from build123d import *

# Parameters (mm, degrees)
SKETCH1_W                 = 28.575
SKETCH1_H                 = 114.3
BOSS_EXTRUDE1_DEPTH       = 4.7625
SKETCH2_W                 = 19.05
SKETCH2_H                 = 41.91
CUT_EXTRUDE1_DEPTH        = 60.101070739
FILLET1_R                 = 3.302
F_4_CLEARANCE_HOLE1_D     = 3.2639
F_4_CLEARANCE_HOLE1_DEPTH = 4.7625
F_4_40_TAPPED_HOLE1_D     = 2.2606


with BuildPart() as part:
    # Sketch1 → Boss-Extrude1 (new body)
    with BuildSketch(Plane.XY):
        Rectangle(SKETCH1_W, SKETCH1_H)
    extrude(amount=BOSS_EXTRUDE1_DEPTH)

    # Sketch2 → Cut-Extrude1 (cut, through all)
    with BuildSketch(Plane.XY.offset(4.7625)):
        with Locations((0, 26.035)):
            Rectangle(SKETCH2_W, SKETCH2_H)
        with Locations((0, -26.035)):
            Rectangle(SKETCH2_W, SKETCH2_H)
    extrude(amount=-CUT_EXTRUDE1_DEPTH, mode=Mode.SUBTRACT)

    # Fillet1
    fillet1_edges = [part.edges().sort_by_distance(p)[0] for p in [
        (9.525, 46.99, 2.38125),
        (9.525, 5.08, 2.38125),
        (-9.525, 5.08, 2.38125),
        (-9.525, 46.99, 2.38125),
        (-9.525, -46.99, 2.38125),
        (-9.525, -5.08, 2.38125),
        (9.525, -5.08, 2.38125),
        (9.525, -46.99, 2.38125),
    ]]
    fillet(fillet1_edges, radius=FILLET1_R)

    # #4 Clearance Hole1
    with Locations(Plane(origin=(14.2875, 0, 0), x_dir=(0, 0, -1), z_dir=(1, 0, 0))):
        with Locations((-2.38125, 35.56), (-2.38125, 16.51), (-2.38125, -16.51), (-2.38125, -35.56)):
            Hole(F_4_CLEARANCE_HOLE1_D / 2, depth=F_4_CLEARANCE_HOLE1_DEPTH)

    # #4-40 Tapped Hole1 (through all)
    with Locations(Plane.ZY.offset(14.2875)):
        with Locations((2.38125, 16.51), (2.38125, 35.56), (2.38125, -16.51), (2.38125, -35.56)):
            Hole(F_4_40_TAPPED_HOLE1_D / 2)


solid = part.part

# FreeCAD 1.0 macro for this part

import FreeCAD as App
import Part
import Sketcher
from FreeCAD import Vector
Q = App.Units.Quantity


def edges_at(feature, points):
    """Names of the edges that pass closest to the given points."""
    edges = feature.Shape.Edges
    near = lambda p: min(range(len(edges)), key=lambda i: edges[i].distToShape(Part.Vertex(*p))[0])
    return sorted({f"Edge{near(p) + 1}" for p in points})

doc = App.newDocument("Part")
params = doc.addObject("Spreadsheet::Sheet", "Params")
for row, (alias, value) in enumerate([
    ("sketch1_height", "4.5 in"),
    ("sketch1_width", "1.125 in"),
    ("pad1_length", "0.1875 in"),
    ("sketch2_width", "0.75 in"),
    ("sketch2_height", "1.65 in"),
    ("fillet_radius", "0.13 in"),
    ("hole_diameter", "0.1285 in"),
    ("hole_depth", "0.1875 in"),
    ("sketch4_diameter", "0.089 in"),
    ("hole2_diameter", "0.089 in"),
], start=1):
    params.set(f"A{row}", alias)
    params.set(f"B{row}", "=" + value)
    params.setAlias(f"B{row}", alias)

body = doc.addObject("PartDesign::Body", "Body")

sketch1 = body.newObject("Sketcher::SketchObject", "Sketch")
sketch1.AttachmentSupport = (doc.getObject("XY_Plane"), [""])
sketch1.MapMode = "FlatFace"
sketch1.addGeometry(Part.LineSegment(Vector(-14, 57, 0), Vector(-14, -57, 0)), False)
sketch1.addGeometry(Part.LineSegment(Vector(-14, -57, 0), Vector(14, -57, 0)), False)
sketch1.addGeometry(Part.LineSegment(Vector(14, -57, 0), Vector(14, 57, 0)), False)
sketch1.addGeometry(Part.LineSegment(Vector(14, 57, 0), Vector(-14, 57, 0)), False)
sketch1.addConstraint(Sketcher.Constraint("Coincident", 0, 2, 1, 1))
sketch1.addConstraint(Sketcher.Constraint("Coincident", 1, 2, 2, 1))
sketch1.addConstraint(Sketcher.Constraint("Coincident", 2, 2, 3, 1))
sketch1.addConstraint(Sketcher.Constraint("Coincident", 3, 2, 0, 1))
sketch1.addConstraint(Sketcher.Constraint("Vertical", 0))
sketch1.addConstraint(Sketcher.Constraint("Horizontal", 1))
sketch1.addConstraint(Sketcher.Constraint("Vertical", 2))
sketch1.addConstraint(Sketcher.Constraint("Horizontal", 3))
sketch1.addConstraint(Sketcher.Constraint("Symmetric", 0, 2, 2, 2, -1, 1))
sketch1.addConstraint(Sketcher.Constraint("DistanceY", 0, 2, 0, 1, Q("4.5 in")))
sketch1.addConstraint(Sketcher.Constraint("DistanceX", 1, 1, 1, 2, Q("1.125 in")))
sketch1.setExpression("Constraints[9]", "Params.sketch1_height")
sketch1.setExpression("Constraints[10]", "Params.sketch1_width")
pad1 = body.newObject("PartDesign::Pad", "Pad")
pad1.Profile = sketch1
pad1.setExpression("Length", "Params.pad1_length")

sketch2 = body.newObject("Sketcher::SketchObject", "Sketch001")
sketch2.AttachmentSupport = (doc.getObject("XY_Plane"), [""])
sketch2.MapMode = "FlatFace"
sketch2.AttachmentOffset = App.Placement(Vector(0, 0, 0.1875 * 25.4), App.Rotation())
sketch2.addGeometry(Part.LineSegment(Vector(-10, 47, 0), Vector(-10, 5, 0)), False)
sketch2.addGeometry(Part.LineSegment(Vector(-10, 5, 0), Vector(10, 5, 0)), False)
sketch2.addGeometry(Part.LineSegment(Vector(10, 5, 0), Vector(10, 47, 0)), False)
sketch2.addGeometry(Part.LineSegment(Vector(10, 47, 0), Vector(-10, 47, 0)), False)
sketch2.addGeometry(Part.LineSegment(Vector(-10, -5, 0), Vector(-10, -47, 0)), False)
sketch2.addGeometry(Part.LineSegment(Vector(-10, -47, 0), Vector(10, -47, 0)), False)
sketch2.addGeometry(Part.LineSegment(Vector(10, -47, 0), Vector(10, -5, 0)), False)
sketch2.addGeometry(Part.LineSegment(Vector(10, -5, 0), Vector(-10, -5, 0)), False)
sketch2.addConstraint(Sketcher.Constraint("Coincident", 0, 2, 1, 1))
sketch2.addConstraint(Sketcher.Constraint("Coincident", 1, 2, 2, 1))
sketch2.addConstraint(Sketcher.Constraint("Coincident", 2, 2, 3, 1))
sketch2.addConstraint(Sketcher.Constraint("Coincident", 3, 2, 0, 1))
sketch2.addConstraint(Sketcher.Constraint("Coincident", 4, 2, 5, 1))
sketch2.addConstraint(Sketcher.Constraint("Coincident", 5, 2, 6, 1))
sketch2.addConstraint(Sketcher.Constraint("Coincident", 6, 2, 7, 1))
sketch2.addConstraint(Sketcher.Constraint("Coincident", 7, 2, 4, 1))
sketch2.addConstraint(Sketcher.Constraint("Vertical", 0))
sketch2.addConstraint(Sketcher.Constraint("Horizontal", 1))
sketch2.addConstraint(Sketcher.Constraint("Vertical", 2))
sketch2.addConstraint(Sketcher.Constraint("Horizontal", 3))
sketch2.addConstraint(Sketcher.Constraint("Vertical", 4))
sketch2.addConstraint(Sketcher.Constraint("Horizontal", 5))
sketch2.addConstraint(Sketcher.Constraint("Vertical", 6))
sketch2.addConstraint(Sketcher.Constraint("Horizontal", 7))
sketch2.addConstraint(Sketcher.Constraint("Symmetric", 2, 2, 4, 2, -1, 1))
sketch2.addConstraint(Sketcher.Constraint("Symmetric", 0, 2, 6, 2, -1, 1))
sketch2.addConstraint(Sketcher.Constraint("Vertical", 3, 2, 4, 2))
sketch2.addConstraint(Sketcher.Constraint("DistanceX", 1, 1, 1, 2, Q("0.75 in")))
sketch2.addConstraint(Sketcher.Constraint("DistanceY", 0, 2, 0, 1, Q("1.65 in")))
sketch2.addConstraint(Sketcher.Constraint("DistanceY", -1, 1, 0, 2, Q("0.2 in")))
sketch2.setExpression("Constraints[19]", "Params.sketch2_width")
sketch2.setExpression("Constraints[20]", "Params.sketch2_height")
pocket1 = body.newObject("PartDesign::Pocket", "Pocket")
pocket1.Profile = sketch2
pocket1.Type = "ThroughAll"
doc.recompute()

fillet = body.newObject("PartDesign::Fillet", "Fillet")
fillet.Base = (pocket1, edges_at(pocket1, [
    (9.525, 46.99, 2.381),
    (9.525, 5.08, 2.381),
    (-9.525, 5.08, 2.381),
    (-9.525, 46.99, 2.381),
    (-9.525, -46.99, 2.381),
    (-9.525, -5.08, 2.381),
    (9.525, -5.08, 2.381),
    (9.525, -46.99, 2.381),
]))
fillet.setExpression("Radius", "Params.fillet_radius")

sketch3 = body.newObject("Sketcher::SketchObject", "Sketch002")
sketch3.AttachmentSupport = (doc.getObject("YZ_Plane"), [""])
sketch3.MapMode = "FlatFace"
sketch3.AttachmentOffset = App.Placement(Vector(0, 0, 0.5625 * 25.4), App.Rotation())
sketch3.addGeometry(Part.Circle(Vector(35.6, 2.4, 0), Vector(0, 0, 1), 1.6), False)
sketch3.addGeometry(Part.Circle(Vector(16.5, 2.4, 0), Vector(0, 0, 1), 1.6), False)
sketch3.addGeometry(Part.Circle(Vector(-16.5, 2.4, 0), Vector(0, 0, 1), 1.6), False)
sketch3.addGeometry(Part.Circle(Vector(-35.6, 2.4, 0), Vector(0, 0, 1), 1.6), False)
sketch3.addConstraint(Sketcher.Constraint("Equal", 0, 1))
sketch3.addConstraint(Sketcher.Constraint("Equal", 1, 2))
sketch3.addConstraint(Sketcher.Constraint("Equal", 2, 3))
sketch3.addConstraint(Sketcher.Constraint("Symmetric", 1, 3, 2, 3, -2))
sketch3.addConstraint(Sketcher.Constraint("Symmetric", 0, 3, 3, 3, -2))
sketch3.addConstraint(Sketcher.Constraint("Horizontal", 0, 3, 1, 3))
sketch3.addConstraint(Sketcher.Constraint("Diameter", 0, Q("0.1285 in")))
sketch3.addConstraint(Sketcher.Constraint("DistanceX", -1, 1, 0, 3, Q("1.4 in")))
sketch3.addConstraint(Sketcher.Constraint("DistanceX", 2, 3, 1, 3, Q("1.3 in")))
sketch3.addConstraint(Sketcher.Constraint("DistanceY", -1, 1, 0, 3, Q("0.09375 in")))
doc.recompute()
hole = body.newObject("PartDesign::Hole", "Hole")
hole.Profile = sketch3
hole.ThreadType = "None"
hole.setExpression("Diameter", "Params.hole_diameter")
hole.DepthType = "Dimension"
hole.setExpression("Depth", "Params.hole_depth")
hole.DrillPoint = "Flat"

sketch4 = body.newObject("Sketcher::SketchObject", "Sketch003")
sketch4.AttachmentSupport = (doc.getObject("YZ_Plane"), [""])
sketch4.MapMode = "FlatFace"
sketch4.AttachmentOffset = App.Placement(Vector(0, 0, -0.5625 * 25.4), App.Rotation())
sketch4.addGeometry(Part.Circle(Vector(16.5, 2.4, 0), Vector(0, 0, 1), 1.1), False)
sketch4.addGeometry(Part.Circle(Vector(35.6, 2.4, 0), Vector(0, 0, 1), 1.1), False)
sketch4.addGeometry(Part.Circle(Vector(-16.5, 2.4, 0), Vector(0, 0, 1), 1.1), False)
sketch4.addGeometry(Part.Circle(Vector(-35.6, 2.4, 0), Vector(0, 0, 1), 1.1), False)
sketch4.addConstraint(Sketcher.Constraint("Equal", 0, 1))
sketch4.addConstraint(Sketcher.Constraint("Equal", 1, 2))
sketch4.addConstraint(Sketcher.Constraint("Equal", 2, 3))
sketch4.addConstraint(Sketcher.Constraint("Symmetric", 0, 3, 2, 3, -2))
sketch4.addConstraint(Sketcher.Constraint("Symmetric", 1, 3, 3, 3, -2))
sketch4.addConstraint(Sketcher.Constraint("Horizontal", 0, 3, 1, 3))
sketch4.addConstraint(Sketcher.Constraint("Diameter", 0, Q("0.089 in")))
sketch4.addConstraint(Sketcher.Constraint("DistanceX", -1, 1, 1, 3, Q("1.4 in")))
sketch4.addConstraint(Sketcher.Constraint("DistanceX", 2, 3, 0, 3, Q("1.3 in")))
sketch4.addConstraint(Sketcher.Constraint("DistanceY", -1, 1, 0, 3, Q("0.09375 in")))
sketch4.setExpression("Constraints[6]", "Params.sketch4_diameter")
doc.recompute()
hole2 = body.newObject("PartDesign::Hole", "Hole001")
hole2.Profile = sketch4
hole2.ThreadType = "None"
hole2.setExpression("Diameter", "Params.hole2_diameter")
hole2.DepthType = "ThroughAll"
hole2.Reversed = True

doc.recompute()
